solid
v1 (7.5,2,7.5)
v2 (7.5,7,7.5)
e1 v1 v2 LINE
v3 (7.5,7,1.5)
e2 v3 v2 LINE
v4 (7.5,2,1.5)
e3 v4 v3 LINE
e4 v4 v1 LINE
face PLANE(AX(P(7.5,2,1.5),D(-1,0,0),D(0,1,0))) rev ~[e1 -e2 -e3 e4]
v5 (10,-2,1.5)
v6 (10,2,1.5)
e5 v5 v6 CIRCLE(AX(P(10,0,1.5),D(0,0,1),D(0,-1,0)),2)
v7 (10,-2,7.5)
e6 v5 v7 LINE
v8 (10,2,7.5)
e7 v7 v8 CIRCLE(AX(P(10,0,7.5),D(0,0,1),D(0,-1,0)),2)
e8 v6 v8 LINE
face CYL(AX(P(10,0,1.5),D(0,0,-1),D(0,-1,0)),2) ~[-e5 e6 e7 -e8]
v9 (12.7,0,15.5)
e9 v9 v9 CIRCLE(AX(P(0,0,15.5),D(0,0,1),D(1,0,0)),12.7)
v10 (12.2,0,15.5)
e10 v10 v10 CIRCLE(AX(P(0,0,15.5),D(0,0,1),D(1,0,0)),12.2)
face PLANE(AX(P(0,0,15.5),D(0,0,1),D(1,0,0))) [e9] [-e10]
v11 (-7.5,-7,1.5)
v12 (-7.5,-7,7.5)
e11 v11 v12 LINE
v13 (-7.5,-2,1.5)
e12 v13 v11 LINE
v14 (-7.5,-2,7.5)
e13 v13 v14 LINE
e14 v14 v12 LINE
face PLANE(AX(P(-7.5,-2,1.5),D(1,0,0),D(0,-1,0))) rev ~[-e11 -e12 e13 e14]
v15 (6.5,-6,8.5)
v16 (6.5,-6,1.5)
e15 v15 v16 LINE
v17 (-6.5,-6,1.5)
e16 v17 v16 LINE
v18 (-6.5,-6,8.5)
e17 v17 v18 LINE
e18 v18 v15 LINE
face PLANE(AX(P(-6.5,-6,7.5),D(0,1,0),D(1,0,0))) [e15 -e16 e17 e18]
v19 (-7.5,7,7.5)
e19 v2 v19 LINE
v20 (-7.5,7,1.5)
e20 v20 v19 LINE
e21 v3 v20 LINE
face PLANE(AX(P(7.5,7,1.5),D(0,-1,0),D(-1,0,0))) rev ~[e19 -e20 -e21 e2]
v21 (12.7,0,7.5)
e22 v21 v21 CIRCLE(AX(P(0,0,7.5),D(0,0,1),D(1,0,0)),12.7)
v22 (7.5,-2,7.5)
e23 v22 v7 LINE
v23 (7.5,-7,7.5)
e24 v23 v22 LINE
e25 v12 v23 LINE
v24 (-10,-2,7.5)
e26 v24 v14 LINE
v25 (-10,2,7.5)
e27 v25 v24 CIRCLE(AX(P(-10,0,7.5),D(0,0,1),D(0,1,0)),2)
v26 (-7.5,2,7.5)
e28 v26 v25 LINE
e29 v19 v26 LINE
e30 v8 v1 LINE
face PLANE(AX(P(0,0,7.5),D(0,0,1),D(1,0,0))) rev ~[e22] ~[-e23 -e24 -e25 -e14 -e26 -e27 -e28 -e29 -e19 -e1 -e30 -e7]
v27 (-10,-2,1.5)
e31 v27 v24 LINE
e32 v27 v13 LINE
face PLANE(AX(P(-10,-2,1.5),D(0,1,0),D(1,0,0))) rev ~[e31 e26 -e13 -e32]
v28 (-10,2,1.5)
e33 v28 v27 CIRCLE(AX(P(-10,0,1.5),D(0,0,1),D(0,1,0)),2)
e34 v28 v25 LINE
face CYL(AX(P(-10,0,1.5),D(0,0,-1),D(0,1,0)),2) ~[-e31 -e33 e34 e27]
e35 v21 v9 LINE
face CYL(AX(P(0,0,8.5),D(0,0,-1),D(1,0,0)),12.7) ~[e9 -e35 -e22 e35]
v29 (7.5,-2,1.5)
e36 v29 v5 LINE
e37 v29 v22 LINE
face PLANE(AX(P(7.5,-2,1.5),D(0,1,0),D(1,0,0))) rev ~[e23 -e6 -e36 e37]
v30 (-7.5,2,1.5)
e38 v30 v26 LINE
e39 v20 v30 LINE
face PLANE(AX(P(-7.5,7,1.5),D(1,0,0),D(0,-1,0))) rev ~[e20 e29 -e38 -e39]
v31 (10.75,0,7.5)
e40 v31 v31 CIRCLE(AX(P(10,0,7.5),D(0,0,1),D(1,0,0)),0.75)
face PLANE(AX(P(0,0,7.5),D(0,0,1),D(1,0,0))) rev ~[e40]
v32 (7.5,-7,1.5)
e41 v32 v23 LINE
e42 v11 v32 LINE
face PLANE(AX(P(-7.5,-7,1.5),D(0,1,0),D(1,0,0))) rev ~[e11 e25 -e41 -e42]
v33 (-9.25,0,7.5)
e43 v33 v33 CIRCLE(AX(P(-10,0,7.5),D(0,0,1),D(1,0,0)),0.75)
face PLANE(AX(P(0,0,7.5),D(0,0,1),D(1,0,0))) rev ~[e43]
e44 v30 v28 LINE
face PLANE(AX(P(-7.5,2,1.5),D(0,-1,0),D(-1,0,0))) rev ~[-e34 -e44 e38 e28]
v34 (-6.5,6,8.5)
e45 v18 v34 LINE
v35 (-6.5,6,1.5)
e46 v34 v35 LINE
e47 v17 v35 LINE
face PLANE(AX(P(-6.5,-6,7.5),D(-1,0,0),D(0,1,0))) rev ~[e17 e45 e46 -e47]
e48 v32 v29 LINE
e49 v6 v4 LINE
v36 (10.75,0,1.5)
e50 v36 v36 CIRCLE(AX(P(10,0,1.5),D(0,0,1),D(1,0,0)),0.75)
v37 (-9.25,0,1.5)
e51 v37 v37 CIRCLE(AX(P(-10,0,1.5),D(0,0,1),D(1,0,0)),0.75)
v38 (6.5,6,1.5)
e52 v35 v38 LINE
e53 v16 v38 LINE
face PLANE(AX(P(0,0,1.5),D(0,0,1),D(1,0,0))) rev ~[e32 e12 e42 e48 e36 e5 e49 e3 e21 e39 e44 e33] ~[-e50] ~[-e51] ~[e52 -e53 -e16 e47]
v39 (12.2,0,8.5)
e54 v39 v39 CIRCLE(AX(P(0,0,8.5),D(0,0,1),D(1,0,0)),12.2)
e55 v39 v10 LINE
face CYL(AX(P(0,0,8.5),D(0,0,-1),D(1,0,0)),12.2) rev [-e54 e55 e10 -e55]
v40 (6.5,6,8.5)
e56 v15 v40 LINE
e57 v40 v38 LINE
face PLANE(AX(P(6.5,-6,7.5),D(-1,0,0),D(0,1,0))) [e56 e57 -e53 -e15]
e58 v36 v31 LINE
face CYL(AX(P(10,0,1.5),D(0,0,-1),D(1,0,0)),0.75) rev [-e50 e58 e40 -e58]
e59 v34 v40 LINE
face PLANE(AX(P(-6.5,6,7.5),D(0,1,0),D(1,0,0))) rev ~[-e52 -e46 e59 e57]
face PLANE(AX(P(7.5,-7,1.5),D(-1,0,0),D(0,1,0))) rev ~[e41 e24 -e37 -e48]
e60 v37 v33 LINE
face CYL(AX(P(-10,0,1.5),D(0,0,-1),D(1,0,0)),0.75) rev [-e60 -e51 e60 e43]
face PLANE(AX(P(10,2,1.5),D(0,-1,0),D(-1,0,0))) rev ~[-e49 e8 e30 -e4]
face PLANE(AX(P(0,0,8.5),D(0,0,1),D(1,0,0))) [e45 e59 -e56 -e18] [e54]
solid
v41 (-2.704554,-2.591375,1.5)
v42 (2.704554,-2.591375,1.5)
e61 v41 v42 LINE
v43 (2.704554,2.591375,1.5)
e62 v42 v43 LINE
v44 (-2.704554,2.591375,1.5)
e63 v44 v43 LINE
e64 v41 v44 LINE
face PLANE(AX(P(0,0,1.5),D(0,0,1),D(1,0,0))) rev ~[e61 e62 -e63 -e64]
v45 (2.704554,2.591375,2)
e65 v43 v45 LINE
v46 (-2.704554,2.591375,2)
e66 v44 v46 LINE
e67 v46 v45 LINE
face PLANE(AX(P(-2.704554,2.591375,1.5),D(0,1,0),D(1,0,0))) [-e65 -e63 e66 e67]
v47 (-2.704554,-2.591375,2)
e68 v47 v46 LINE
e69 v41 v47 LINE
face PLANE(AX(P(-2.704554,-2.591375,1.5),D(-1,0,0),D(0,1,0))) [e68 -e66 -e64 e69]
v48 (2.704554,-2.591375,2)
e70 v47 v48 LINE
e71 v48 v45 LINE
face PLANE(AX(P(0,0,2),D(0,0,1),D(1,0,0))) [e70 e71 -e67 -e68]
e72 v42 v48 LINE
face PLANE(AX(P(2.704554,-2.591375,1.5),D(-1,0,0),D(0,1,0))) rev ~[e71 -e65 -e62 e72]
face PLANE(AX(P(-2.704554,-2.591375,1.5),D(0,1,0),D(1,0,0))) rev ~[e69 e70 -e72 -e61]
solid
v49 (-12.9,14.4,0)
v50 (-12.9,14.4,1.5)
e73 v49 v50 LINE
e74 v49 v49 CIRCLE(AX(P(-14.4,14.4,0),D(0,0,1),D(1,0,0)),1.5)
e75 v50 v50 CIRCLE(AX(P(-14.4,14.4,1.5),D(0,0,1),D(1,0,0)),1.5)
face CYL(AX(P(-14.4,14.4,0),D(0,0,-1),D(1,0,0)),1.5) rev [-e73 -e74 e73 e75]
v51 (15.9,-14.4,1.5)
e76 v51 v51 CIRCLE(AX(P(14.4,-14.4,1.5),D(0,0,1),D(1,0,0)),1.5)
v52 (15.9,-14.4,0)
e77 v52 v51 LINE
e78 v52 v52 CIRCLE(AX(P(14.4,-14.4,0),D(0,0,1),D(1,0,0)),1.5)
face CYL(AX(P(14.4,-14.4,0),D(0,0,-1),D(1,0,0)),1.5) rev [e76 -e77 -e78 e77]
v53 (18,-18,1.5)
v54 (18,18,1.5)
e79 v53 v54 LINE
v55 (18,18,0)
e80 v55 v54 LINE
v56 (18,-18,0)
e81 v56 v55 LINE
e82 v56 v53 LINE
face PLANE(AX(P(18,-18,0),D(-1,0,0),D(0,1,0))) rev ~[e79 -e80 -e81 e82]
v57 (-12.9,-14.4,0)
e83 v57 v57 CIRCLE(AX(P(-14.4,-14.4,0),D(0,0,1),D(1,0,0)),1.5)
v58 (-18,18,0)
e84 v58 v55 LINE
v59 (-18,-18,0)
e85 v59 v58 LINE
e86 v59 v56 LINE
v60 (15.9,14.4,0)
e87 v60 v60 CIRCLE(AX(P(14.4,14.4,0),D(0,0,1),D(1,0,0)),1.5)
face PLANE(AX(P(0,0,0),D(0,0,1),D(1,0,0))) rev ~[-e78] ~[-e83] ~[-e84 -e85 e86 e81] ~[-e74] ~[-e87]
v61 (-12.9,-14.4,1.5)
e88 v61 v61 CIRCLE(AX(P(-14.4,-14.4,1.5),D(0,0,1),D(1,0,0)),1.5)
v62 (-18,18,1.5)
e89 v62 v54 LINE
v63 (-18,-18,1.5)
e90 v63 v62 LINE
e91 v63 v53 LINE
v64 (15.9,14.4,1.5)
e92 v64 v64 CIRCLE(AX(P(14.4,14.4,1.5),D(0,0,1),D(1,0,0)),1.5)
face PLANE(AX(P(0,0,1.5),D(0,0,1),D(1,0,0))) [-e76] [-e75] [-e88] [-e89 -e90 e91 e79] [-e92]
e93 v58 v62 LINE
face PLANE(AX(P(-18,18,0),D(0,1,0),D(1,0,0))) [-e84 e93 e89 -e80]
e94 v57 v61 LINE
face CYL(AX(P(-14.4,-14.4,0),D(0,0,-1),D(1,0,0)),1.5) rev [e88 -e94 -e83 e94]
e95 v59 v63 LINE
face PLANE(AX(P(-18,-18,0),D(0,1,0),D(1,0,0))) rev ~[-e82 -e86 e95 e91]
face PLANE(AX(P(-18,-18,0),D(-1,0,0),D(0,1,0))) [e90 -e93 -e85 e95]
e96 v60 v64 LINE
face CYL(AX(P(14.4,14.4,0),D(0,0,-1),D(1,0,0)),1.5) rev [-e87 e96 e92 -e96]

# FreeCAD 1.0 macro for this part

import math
import FreeCAD as App
import Part
import Sketcher
Q = App.Units.Quantity

doc = App.newDocument("Part")
body = doc.addObject("PartDesign::Body", "Body")

# Sketch on XY plane
sketch1 = body.newObject("Sketcher::SketchObject", "Sketch")
sketch1.AttachmentSupport = (doc.getObject("XY_Plane"), [""])
sketch1.MapMode = "FlatFace"
sketch1.addGeometry(Part.LineSegment(App.Vector(-18, 18, 0), App.Vector(-18, -18, 0)), False)
sketch1.addGeometry(Part.LineSegment(App.Vector(-18, -18, 0), App.Vector(18, -18, 0)), False)
sketch1.addGeometry(Part.LineSegment(App.Vector(18, -18, 0), App.Vector(18, 18, 0)), False)
sketch1.addGeometry(Part.LineSegment(App.Vector(18, 18, 0), App.Vector(-18, 18, 0)), False)
sketch1.addGeometry(Part.Circle(App.Vector(-14.4, -14.4, 0), App.Vector(0, 0, 1), 1.5), False)
sketch1.addGeometry(Part.Circle(App.Vector(14.4, -14.4, 0), App.Vector(0, 0, 1), 1.5), False)
sketch1.addGeometry(Part.Circle(App.Vector(-14.4, 14.4, 0), App.Vector(0, 0, 1), 1.5), False)
sketch1.addGeometry(Part.Circle(App.Vector(14.4, 14.4, 0), App.Vector(0, 0, 1), 1.5), False)
sketch1.addConstraint(Sketcher.Constraint("Coincident", 0, 2, 1, 1))
sketch1.addConstraint(Sketcher.Constraint("Coincident", 1, 2, 2, 1))
sketch1.addConstraint(Sketcher.Constraint("Coincident", 2, 2, 3, 1))
sketch1.addConstraint(Sketcher.Constraint("Coincident", 3, 2, 0, 1))
sketch1.addConstraint(Sketcher.Constraint("Vertical", 0))
sketch1.addConstraint(Sketcher.Constraint("Horizontal", 1))
sketch1.addConstraint(Sketcher.Constraint("Vertical", 2))
sketch1.addConstraint(Sketcher.Constraint("Horizontal", 3))
sketch1.addConstraint(Sketcher.Constraint("Equal", 4, 5))
sketch1.addConstraint(Sketcher.Constraint("Equal", 5, 6))
sketch1.addConstraint(Sketcher.Constraint("Equal", 6, 7))
sketch1.addConstraint(Sketcher.Constraint("Symmetric", 5, 3, 6, 3, -1, 1))
sketch1.addConstraint(Sketcher.Constraint("Symmetric", 4, 3, 7, 3, -1, 1))
sketch1.addConstraint(Sketcher.Constraint("Symmetric", 0, 2, 2, 2, -1, 1))
sketch1.addConstraint(Sketcher.Constraint("Symmetric", 4, 3, 5, 3, -2))
sketch1.addConstraint(Sketcher.Constraint("Equal", 3, 0))
sketch1.addConstraint(Sketcher.Constraint("Diameter", 4, Q("3 mm")))
sketch1.addConstraint(Sketcher.Constraint("DistanceX", 1, 1, 1, 2, Q("36 mm")))
sketch1.addConstraint(Sketcher.Constraint("DistanceX", 4, 3, -1, 1, Q("14.4 mm")))
sketch1.addConstraint(Sketcher.Constraint("DistanceY", 4, 3, -1, 1, Q("14.4 mm")))
pad1 = body.newObject("PartDesign::Pad", "Pad")
pad1.Profile = sketch1
pad1.Length = 1.5
body2 = doc.addObject("PartDesign::Body", "Body001")

# Sketch on XY plane
sketch2 = body2.newObject("Sketcher::SketchObject", "Sketch001")
sketch2.AttachmentSupport = (doc.getObject("XY_Plane001"), [""])
sketch2.MapMode = "FlatFace"
sketch2.AttachmentOffset = App.Placement(App.Vector(0, 0, 1.5), App.Rotation())
sketch2.addGeometry(Part.LineSegment(App.Vector(-3, 3, 0), App.Vector(-3, -3, 0)), False)
sketch2.addGeometry(Part.LineSegment(App.Vector(-3, -3, 0), App.Vector(3, -3, 0)), False)
sketch2.addGeometry(Part.LineSegment(App.Vector(3, -3, 0), App.Vector(3, 3, 0)), False)
sketch2.addGeometry(Part.LineSegment(App.Vector(3, 3, 0), App.Vector(-3, 3, 0)), False)
sketch2.addConstraint(Sketcher.Constraint("Coincident", 0, 2, 1, 1))
sketch2.addConstraint(Sketcher.Constraint("Coincident", 1, 2, 2, 1))
sketch2.addConstraint(Sketcher.Constraint("Coincident", 2, 2, 3, 1))
sketch2.addConstraint(Sketcher.Constraint("Coincident", 3, 2, 0, 1))
sketch2.addConstraint(Sketcher.Constraint("Vertical", 0))
sketch2.addConstraint(Sketcher.Constraint("Horizontal", 1))
sketch2.addConstraint(Sketcher.Constraint("Vertical", 2))
sketch2.addConstraint(Sketcher.Constraint("Horizontal", 3))
sketch2.addConstraint(Sketcher.Constraint("Symmetric", 0, 2, 2, 2, -1, 1))
sketch2.addConstraint(Sketcher.Constraint("DistanceY", 0, 2, 0, 1, Q("5.18275 mm")))
sketch2.addConstraint(Sketcher.Constraint("DistanceX", 1, 1, 1, 2, Q("5.409108 mm")))
pad2 = body2.newObject("PartDesign::Pad", "Pad001")
pad2.Profile = sketch2
pad2.Length = 0.5
body3 = doc.addObject("PartDesign::Body", "Body002")

# Sketch on XY plane
sketch3 = body3.newObject("Sketcher::SketchObject", "Sketch002")
sketch3.AttachmentSupport = (doc.getObject("XY_Plane002"), [""])
sketch3.MapMode = "FlatFace"
sketch3.AttachmentOffset = App.Placement(App.Vector(0, 0, 1.5), App.Rotation())
sketch3.addGeometry(Part.LineSegment(App.Vector(-7.5, -7, 0), App.Vector(7.5, -7, 0)), False)
sketch3.addGeometry(Part.LineSegment(App.Vector(7.5, -7, 0), App.Vector(7.5, -2, 0)), False)
sketch3.addGeometry(Part.LineSegment(App.Vector(7.5, -2, 0), App.Vector(10, -2, 0)), False)
sketch3.addGeometry(Part.ArcOfCircle(Part.Circle(App.Vector(10, 0, 0), App.Vector(0, 0, 1), 2), math.radians(-90), math.radians(90)), False)
sketch3.addGeometry(Part.LineSegment(App.Vector(10, 2, 0), App.Vector(7.5, 2, 0)), False)
sketch3.addGeometry(Part.LineSegment(App.Vector(7.5, 2, 0), App.Vector(7.5, 7, 0)), False)
sketch3.addGeometry(Part.LineSegment(App.Vector(7.5, 7, 0), App.Vector(-7.5, 7, 0)), False)
sketch3.addGeometry(Part.LineSegment(App.Vector(-7.5, 7, 0), App.Vector(-7.5, 2, 0)), False)
sketch3.addGeometry(Part.LineSegment(App.Vector(-7.5, 2, 0), App.Vector(-10, 2, 0)), False)
sketch3.addGeometry(Part.ArcOfCircle(Part.Circle(App.Vector(-10, 0, 0), App.Vector(0, 0, 1), 2), math.radians(90), math.radians(270)), False)
sketch3.addGeometry(Part.LineSegment(App.Vector(-10, -2, 0), App.Vector(-7.5, -2, 0)), False)
sketch3.addGeometry(Part.LineSegment(App.Vector(-7.5, -2, 0), App.Vector(-7.5, -7, 0)), False)
sketch3.addGeometry(Part.Circle(App.Vector(-10, 0, 0), App.Vector(0, 0, 1), 0.8), False)
sketch3.addGeometry(Part.LineSegment(App.Vector(6.5, -6, 0), App.Vector(-6.5, -6, 0)), False)
sketch3.addGeometry(Part.LineSegment(App.Vector(-6.5, -6, 0), App.Vector(-6.5, 6, 0)), False)
sketch3.addGeometry(Part.LineSegment(App.Vector(-6.5, 6, 0), App.Vector(6.5, 6, 0)), False)
sketch3.addGeometry(Part.LineSegment(App.Vector(6.5, 6, 0), App.Vector(6.5, -6, 0)), False)
sketch3.addGeometry(Part.Circle(App.Vector(10, 0, 0), App.Vector(0, 0, 1), 0.8), False)
sketch3.addConstraint(Sketcher.Constraint("Coincident", 0, 2, 1, 1))
sketch3.addConstraint(Sketcher.Constraint("Coincident", 1, 2, 2, 1))
sketch3.addConstraint(Sketcher.Constraint("Tangent", 2, 2, 3, 1))
sketch3.addConstraint(Sketcher.Constraint("Tangent", 3, 2, 4, 1))
sketch3.addConstraint(Sketcher.Constraint("Coincident", 4, 2, 5, 1))
sketch3.addConstraint(Sketcher.Constraint("Coincident", 5, 2, 6, 1))
sketch3.addConstraint(Sketcher.Constraint("Coincident", 6, 2, 7, 1))
sketch3.addConstraint(Sketcher.Constraint("Coincident", 7, 2, 8, 1))
sketch3.addConstraint(Sketcher.Constraint("Tangent", 8, 2, 9, 1))
sketch3.addConstraint(Sketcher.Constraint("Tangent", 9, 2, 10, 1))
sketch3.addConstraint(Sketcher.Constraint("Coincident", 10, 2, 11, 1))
sketch3.addConstraint(Sketcher.Constraint("Coincident", 11, 2, 0, 1))
sketch3.addConstraint(Sketcher.Constraint("Coincident", 13, 2, 14, 1))
sketch3.addConstraint(Sketcher.Constraint("Coincident", 14, 2, 15, 1))
sketch3.addConstraint(Sketcher.Constraint("Coincident", 15, 2, 16, 1))
sketch3.addConstraint(Sketcher.Constraint("Coincident", 16, 2, 13, 1))
sketch3.addConstraint(Sketcher.Constraint("Horizontal", 0))
sketch3.addConstraint(Sketcher.Constraint("Vertical", 1))
sketch3.addConstraint(Sketcher.Constraint("Horizontal", 2))
sketch3.addConstraint(Sketcher.Constraint("Horizontal", 4))
sketch3.addConstraint(Sketcher.Constraint("Vertical", 5))
sketch3.addConstraint(Sketcher.Constraint("Horizontal", 6))
sketch3.addConstraint(Sketcher.Constraint("Vertical", 7))
sketch3.addConstraint(Sketcher.Constraint("Horizontal", 8))
sketch3.addConstraint(Sketcher.Constraint("Horizontal", 10))
sketch3.addConstraint(Sketcher.Constraint("Vertical", 11))
sketch3.addConstraint(Sketcher.Constraint("Horizontal", 13))
sketch3.addConstraint(Sketcher.Constraint("Vertical", 14))
sketch3.addConstraint(Sketcher.Constraint("Horizontal", 15))
sketch3.addConstraint(Sketcher.Constraint("Vertical", 16))
sketch3.addConstraint(Sketcher.Constraint("Coincident", 12, 3, 9, 3))
sketch3.addConstraint(Sketcher.Constraint("Coincident", 17, 3, 3, 3))
sketch3.addConstraint(Sketcher.Constraint("Equal", 3, 9))
sketch3.addConstraint(Sketcher.Constraint("Equal", 12, 17))
sketch3.addConstraint(Sketcher.Constraint("Symmetric", 3, 3, 9, 3, -1, 1))
sketch3.addConstraint(Sketcher.Constraint("Symmetric", 0, 2, 6, 2, -1, 1))
sketch3.addConstraint(Sketcher.Constraint("Symmetric", 13, 2, 15, 2, -1, 1))
sketch3.addConstraint(Sketcher.Constraint("Symmetric", 4, 2, 7, 2, -2))
sketch3.addConstraint(Sketcher.Constraint("Vertical", 7, 2, 10, 2))
sketch3.addConstraint(Sketcher.Constraint("Radius", 3, Q("2 mm")))
sketch3.addConstraint(Sketcher.Constraint("Diameter", 12, Q("1.5 mm")))
sketch3.addConstraint(Sketcher.Constraint("DistanceX", 0, 1, 0, 2, Q("15 mm")))
sketch3.addConstraint(Sketcher.Constraint("DistanceX", 13, 2, 13, 1, Q("13 mm")))
sketch3.addConstraint(Sketcher.Constraint("DistanceY", 1, 1, 1, 2, Q("5 mm")))
sketch3.addConstraint(Sketcher.Constraint("DistanceY", 14, 1, 14, 2, Q("12 mm")))
sketch3.addConstraint(Sketcher.Constraint("DistanceX", 2, 1, 2, 2, Q("2.5 mm")))
pad3 = body3.newObject("PartDesign::Pad", "Pad002")
pad3.Profile = sketch3
pad3.Length = 6

# Sketch on XY plane
sketch4 = body3.newObject("Sketcher::SketchObject", "Sketch003")
sketch4.AttachmentSupport = (doc.getObject("XY_Plane002"), [""])
sketch4.MapMode = "FlatFace"
sketch4.AttachmentOffset = App.Placement(App.Vector(0, 0, 7.5), App.Rotation())
sketch4.addGeometry(Part.Circle(App.Vector(0, 0, 0), App.Vector(0, 0, 1), 13), False)
sketch4.addGeometry(Part.LineSegment(App.Vector(6, -6, 0), App.Vector(-6, -6, 0)), False)
sketch4.addGeometry(Part.LineSegment(App.Vector(-6, -6, 0), App.Vector(-6, 6, 0)), False)
sketch4.addGeometry(Part.LineSegment(App.Vector(-6, 6, 0), App.Vector(6, 6, 0)), False)
sketch4.addGeometry(Part.LineSegment(App.Vector(6, 6, 0), App.Vector(6, -6, 0)), False)
sketch4.addConstraint(Sketcher.Constraint("Coincident", 1, 2, 2, 1))
sketch4.addConstraint(Sketcher.Constraint("Coincident", 2, 2, 3, 1))
sketch4.addConstraint(Sketcher.Constraint("Coincident", 3, 2, 4, 1))
sketch4.addConstraint(Sketcher.Constraint("Coincident", 4, 2, 1, 1))
sketch4.addConstraint(Sketcher.Constraint("Horizontal", 1))
sketch4.addConstraint(Sketcher.Constraint("Vertical", 2))
sketch4.addConstraint(Sketcher.Constraint("Horizontal", 3))
sketch4.addConstraint(Sketcher.Constraint("Vertical", 4))
sketch4.addConstraint(Sketcher.Constraint("Coincident", 0, 3, -1, 1))
sketch4.addConstraint(Sketcher.Constraint("Symmetric", 1, 2, 3, 2, -1, 1))
sketch4.addConstraint(Sketcher.Constraint("Diameter", 0, Q("25.4 mm")))
sketch4.addConstraint(Sketcher.Constraint("DistanceX", 1, 2, 1, 1, Q("13 mm")))
sketch4.addConstraint(Sketcher.Constraint("DistanceY", 2, 1, 2, 2, Q("12 mm")))
pad4 = body3.newObject("PartDesign::Pad", "Pad003")
pad4.Profile = sketch4
pad4.Length = 1

# Sketch on XY plane
sketch5 = body3.newObject("Sketcher::SketchObject", "Sketch004")
sketch5.AttachmentSupport = (doc.getObject("XY_Plane002"), [""])
sketch5.MapMode = "FlatFace"
sketch5.AttachmentOffset = App.Placement(App.Vector(0, 0, 8.5), App.Rotation())
sketch5.addGeometry(Part.Circle(App.Vector(0, 0, 0), App.Vector(0, 0, 1), 13), False)
sketch5.addGeometry(Part.Circle(App.Vector(0, 0, 0), App.Vector(0, 0, 1), 12), False)
sketch5.addConstraint(Sketcher.Constraint("Coincident", 0, 3, -1, 1))
sketch5.addConstraint(Sketcher.Constraint("Coincident", 1, 3, -1, 1))
sketch5.addConstraint(Sketcher.Constraint("Diameter", 0, Q("25.4 mm")))
sketch5.addConstraint(Sketcher.Constraint("Diameter", 1, Q("24.4 mm")))
pad5 = body3.newObject("PartDesign::Pad", "Pad004")
pad5.Profile = sketch5
pad5.Length = 7

doc.recompute()
